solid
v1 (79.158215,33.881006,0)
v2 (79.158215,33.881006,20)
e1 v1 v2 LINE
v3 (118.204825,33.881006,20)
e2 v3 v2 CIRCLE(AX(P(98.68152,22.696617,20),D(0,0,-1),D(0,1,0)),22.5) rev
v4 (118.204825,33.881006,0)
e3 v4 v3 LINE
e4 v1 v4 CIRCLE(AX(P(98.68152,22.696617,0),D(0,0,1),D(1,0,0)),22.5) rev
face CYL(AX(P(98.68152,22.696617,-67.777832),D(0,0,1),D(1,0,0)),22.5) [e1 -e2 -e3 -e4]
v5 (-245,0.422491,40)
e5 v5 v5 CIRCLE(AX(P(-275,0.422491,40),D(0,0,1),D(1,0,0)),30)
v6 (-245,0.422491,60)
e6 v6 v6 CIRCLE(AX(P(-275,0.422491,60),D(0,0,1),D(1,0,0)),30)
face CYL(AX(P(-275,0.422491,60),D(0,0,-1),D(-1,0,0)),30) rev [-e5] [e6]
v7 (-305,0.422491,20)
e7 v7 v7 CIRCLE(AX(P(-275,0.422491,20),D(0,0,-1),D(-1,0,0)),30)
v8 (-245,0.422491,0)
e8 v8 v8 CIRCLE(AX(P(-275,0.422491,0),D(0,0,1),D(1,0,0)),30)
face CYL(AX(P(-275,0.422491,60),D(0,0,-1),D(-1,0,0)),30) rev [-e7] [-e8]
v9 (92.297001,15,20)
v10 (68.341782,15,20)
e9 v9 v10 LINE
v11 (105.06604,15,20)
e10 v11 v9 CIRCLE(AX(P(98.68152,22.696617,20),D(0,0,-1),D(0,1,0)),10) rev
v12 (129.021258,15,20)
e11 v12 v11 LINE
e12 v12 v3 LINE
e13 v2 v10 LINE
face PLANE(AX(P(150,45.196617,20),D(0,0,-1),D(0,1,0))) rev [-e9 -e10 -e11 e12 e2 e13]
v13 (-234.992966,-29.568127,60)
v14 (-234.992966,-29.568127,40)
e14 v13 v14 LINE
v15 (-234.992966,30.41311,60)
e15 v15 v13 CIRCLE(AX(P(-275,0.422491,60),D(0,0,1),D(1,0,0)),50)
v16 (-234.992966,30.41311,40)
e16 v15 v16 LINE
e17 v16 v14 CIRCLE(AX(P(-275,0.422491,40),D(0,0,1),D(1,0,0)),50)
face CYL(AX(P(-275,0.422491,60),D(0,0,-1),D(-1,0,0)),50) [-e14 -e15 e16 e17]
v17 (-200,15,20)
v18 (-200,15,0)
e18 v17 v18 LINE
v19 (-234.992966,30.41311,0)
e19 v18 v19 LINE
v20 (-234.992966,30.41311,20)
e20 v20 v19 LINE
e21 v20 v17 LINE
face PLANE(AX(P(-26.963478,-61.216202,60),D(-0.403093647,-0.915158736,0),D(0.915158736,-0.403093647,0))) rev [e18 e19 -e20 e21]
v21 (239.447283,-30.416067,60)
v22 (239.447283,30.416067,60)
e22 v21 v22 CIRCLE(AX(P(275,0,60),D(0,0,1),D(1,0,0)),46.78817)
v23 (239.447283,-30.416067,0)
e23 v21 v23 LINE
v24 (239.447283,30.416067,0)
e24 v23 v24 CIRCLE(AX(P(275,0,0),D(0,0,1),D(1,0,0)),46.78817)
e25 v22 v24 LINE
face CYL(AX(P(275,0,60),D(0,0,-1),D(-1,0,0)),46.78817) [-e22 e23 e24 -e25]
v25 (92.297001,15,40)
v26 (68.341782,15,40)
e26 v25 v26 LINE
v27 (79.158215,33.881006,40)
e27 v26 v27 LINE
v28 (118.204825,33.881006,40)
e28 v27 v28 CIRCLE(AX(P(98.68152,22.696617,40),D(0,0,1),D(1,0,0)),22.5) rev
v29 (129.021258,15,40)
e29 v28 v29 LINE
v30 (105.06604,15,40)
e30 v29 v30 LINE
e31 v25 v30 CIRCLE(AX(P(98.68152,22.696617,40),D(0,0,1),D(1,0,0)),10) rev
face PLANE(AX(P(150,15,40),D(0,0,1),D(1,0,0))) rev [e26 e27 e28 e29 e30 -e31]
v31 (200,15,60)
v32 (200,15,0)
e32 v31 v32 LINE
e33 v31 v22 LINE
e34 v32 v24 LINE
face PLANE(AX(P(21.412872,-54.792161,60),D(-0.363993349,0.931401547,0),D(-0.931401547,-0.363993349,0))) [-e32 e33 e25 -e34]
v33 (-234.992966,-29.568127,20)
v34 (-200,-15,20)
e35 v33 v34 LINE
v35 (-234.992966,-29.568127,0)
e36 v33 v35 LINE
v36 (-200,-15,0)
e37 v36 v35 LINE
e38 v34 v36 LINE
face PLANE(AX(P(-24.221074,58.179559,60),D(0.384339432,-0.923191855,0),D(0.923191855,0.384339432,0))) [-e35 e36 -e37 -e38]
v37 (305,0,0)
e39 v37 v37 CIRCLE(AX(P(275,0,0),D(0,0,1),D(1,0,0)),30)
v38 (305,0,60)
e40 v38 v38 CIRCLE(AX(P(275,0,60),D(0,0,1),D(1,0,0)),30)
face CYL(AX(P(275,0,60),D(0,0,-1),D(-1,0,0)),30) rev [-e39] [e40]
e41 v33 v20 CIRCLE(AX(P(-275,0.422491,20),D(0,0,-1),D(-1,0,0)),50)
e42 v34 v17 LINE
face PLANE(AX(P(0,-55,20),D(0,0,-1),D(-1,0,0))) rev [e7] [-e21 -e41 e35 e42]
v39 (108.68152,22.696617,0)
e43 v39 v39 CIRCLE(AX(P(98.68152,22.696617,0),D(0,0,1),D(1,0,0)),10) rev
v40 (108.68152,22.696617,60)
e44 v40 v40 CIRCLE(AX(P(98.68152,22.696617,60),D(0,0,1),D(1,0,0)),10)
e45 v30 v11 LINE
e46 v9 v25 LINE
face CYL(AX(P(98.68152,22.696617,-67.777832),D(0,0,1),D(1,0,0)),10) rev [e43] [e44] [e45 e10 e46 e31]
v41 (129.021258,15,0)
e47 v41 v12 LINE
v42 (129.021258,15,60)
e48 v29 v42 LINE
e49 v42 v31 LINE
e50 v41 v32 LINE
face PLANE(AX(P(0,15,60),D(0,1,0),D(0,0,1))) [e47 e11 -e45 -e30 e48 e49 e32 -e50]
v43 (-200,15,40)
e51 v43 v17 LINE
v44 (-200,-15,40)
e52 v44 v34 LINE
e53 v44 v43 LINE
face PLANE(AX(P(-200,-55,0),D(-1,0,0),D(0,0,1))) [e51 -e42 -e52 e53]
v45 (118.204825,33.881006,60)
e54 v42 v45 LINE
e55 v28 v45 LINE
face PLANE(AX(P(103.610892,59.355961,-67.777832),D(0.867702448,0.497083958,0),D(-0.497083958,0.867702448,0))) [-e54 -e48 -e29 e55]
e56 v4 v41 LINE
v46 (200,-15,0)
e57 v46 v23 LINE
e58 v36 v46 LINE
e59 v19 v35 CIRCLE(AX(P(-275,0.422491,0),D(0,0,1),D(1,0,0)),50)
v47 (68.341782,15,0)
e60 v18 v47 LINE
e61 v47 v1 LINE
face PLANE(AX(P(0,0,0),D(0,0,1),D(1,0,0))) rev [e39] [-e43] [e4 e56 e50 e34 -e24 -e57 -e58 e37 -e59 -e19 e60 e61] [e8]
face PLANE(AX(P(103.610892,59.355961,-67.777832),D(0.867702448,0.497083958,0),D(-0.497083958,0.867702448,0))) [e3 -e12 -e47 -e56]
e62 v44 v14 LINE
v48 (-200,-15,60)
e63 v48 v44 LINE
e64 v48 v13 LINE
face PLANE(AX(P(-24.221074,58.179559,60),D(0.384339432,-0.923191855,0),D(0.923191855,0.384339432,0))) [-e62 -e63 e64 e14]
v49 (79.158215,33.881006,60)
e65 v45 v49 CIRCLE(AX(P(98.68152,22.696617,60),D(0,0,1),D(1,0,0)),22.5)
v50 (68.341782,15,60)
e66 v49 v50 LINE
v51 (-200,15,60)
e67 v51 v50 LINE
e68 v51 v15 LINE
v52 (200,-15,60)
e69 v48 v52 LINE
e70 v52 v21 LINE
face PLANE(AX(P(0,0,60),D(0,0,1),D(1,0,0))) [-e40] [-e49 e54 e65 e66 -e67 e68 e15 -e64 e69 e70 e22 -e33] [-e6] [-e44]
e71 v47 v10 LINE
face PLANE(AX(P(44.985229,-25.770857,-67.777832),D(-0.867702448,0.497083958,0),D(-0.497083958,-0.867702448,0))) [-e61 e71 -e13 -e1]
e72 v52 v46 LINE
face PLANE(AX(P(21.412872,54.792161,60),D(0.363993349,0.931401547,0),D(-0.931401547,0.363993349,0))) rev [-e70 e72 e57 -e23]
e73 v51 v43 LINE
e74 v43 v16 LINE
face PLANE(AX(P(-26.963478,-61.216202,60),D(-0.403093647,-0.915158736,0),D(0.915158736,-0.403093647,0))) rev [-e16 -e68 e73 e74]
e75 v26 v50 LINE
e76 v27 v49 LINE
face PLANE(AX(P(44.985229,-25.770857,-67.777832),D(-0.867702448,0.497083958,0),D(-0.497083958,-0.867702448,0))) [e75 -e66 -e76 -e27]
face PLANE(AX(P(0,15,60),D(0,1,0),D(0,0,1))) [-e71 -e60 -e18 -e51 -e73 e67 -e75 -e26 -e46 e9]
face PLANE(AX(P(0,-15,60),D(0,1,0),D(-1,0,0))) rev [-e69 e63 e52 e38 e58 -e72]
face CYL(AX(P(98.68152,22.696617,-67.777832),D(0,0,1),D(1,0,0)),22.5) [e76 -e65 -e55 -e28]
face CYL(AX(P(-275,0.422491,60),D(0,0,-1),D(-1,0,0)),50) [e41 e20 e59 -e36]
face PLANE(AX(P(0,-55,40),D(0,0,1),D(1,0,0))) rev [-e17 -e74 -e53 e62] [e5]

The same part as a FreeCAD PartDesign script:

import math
import FreeCAD as App
import Part
import Sketcher
Q = App.Units.Quantity

doc = App.newDocument("Part")
params = doc.addObject("Spreadsheet::Sheet", "Params")
for row, (alias, value) in enumerate([
    ("sketch1_diameter", "60 mm"),
    ("sketch1_radius", "50 mm"),
    ("sketch1_width", "400 mm"),
    ("pad1_length", "60 mm"),
    ("sketch2_width", "125 mm"),
    ("sketch2_height", "20 mm"),
    ("pocket1_length", "140 mm"),
    ("sketch3_radius", "10 mm"),
    ("sketch3_radius2", "22.5 mm"),
    ("pad2_length", "60 mm"),
    ("sketch4_diameter", "20 mm"),
    ("sketch5_height", "20 mm"),
    ("pocket3_length", "350 mm"),
], start=1):
    params.set(f"A{row}", alias)
    params.set(f"B{row}", "=" + value)
    params.setAlias(f"B{row}", alias)

body = doc.addObject("PartDesign::Body", "Body")

sketch1 = body.newObject("Sketcher::SketchObject", "Sketch")
sketch1.AttachmentSupport = (doc.getObject("XY_Plane"), [""])
sketch1.MapMode = "FlatFace"
sketch1.addGeometry(Part.LineSegment(App.Vector(200, 15, 0), App.Vector(-200, 15, 0)), False)
sketch1.addGeometry(Part.LineSegment(App.Vector(-200, 15, 0), App.Vector(-234.992966, 30.41311, 0)), False)
sketch1.addGeometry(Part.ArcOfCircle(Part.Circle(App.Vector(-275, 0.422491, 0), App.Vector(0, 0, 1), 50), math.radians(36.856461), math.radians(323.143539)), False)
sketch1.addGeometry(Part.LineSegment(App.Vector(-234.992966, -29.568127, 0), App.Vector(-200, -15, 0)), False)
sketch1.addGeometry(Part.LineSegment(App.Vector(-200, -15, 0), App.Vector(200, -15, 0)), False)
sketch1.addGeometry(Part.LineSegment(App.Vector(200, -15, 0), App.Vector(239.447283, -30.416067, 0)), False)
sketch1.addGeometry(Part.ArcOfCircle(Part.Circle(App.Vector(275, 0, 0), App.Vector(0, 0, 1), 46.78817), math.radians(-139.452344), math.radians(139.452344)), False)
sketch1.addGeometry(Part.LineSegment(App.Vector(239.447283, 30.416067, 0), App.Vector(200, 15, 0)), False)
sketch1.addGeometry(Part.Circle(App.Vector(275, 0, 0), App.Vector(0, 0, 1), 30), False)
sketch1.addGeometry(Part.Circle(App.Vector(-275, 0.422491, 0), App.Vector(0, 0, 1), 30), False)
sketch1.addConstraint(Sketcher.Constraint("Coincident", 0, 2, 1, 1))
sketch1.addConstraint(Sketcher.Constraint("Coincident", 1, 2, 2, 1))
sketch1.addConstraint(Sketcher.Constraint("Coincident", 2, 2, 3, 1))
sketch1.addConstraint(Sketcher.Constraint("Coincident", 3, 2, 4, 1))
sketch1.addConstraint(Sketcher.Constraint("Coincident", 4, 2, 5, 1))
sketch1.addConstraint(Sketcher.Constraint("Coincident", 5, 2, 6, 1))
sketch1.addConstraint(Sketcher.Constraint("Coincident", 6, 2, 7, 1))
sketch1.addConstraint(Sketcher.Constraint("Coincident", 7, 2, 0, 1))
sketch1.addConstraint(Sketcher.Constraint("Horizontal", 0))
sketch1.addConstraint(Sketcher.Constraint("Horizontal", 4))
sketch1.addConstraint(Sketcher.Constraint("Coincident", 8, 3, 6, 3))
sketch1.addConstraint(Sketcher.Constraint("Coincident", 9, 3, 2, 3))
sketch1.addConstraint(Sketcher.Constraint("Equal", 8, 9))
sketch1.addConstraint(Sketcher.Constraint("Symmetric", 0, 2, 4, 2, -1, 1))
sketch1.addConstraint(Sketcher.Constraint("Symmetric", 5, 2, 6, 2, -1))
sketch1.addConstraint(Sketcher.Constraint("Vertical", 1, 2, 2, 2))
sketch1.addConstraint(Sketcher.Constraint("Vertical", 0, 2, 3, 2))
sketch1.addConstraint(Sketcher.Constraint("Vertical", 4, 2, 7, 2))
sketch1.addConstraint(Sketcher.Constraint("Diameter", 8, Q("60 mm")))
sketch1.addConstraint(Sketcher.Constraint("Radius", 2, Q("50 mm")))
sketch1.addConstraint(Sketcher.Constraint("DistanceX", 0, 2, 0, 1, Q("400 mm")))
sketch1.addConstraint(Sketcher.Constraint("DistanceX", 2, 3, -1, 1, Q("275 mm")))
sketch1.addConstraint(Sketcher.Constraint("DistanceX", -1, 1, 6, 3, Q("275 mm")))
sketch1.addConstraint(Sketcher.Constraint("DistanceY", -1, 1, 0, 2, Q("15 mm")))
sketch1.addConstraint(Sketcher.Constraint("Radius", 6, Q("46.78817 mm")))
sketch1.addConstraint(Sketcher.Constraint("DistanceY", -1, 1, 2, 3, Q("0.422491 mm")))
sketch1.addConstraint(Sketcher.Constraint("DistanceY", -1, 1, 1, 2, Q("30.41311 mm")))
sketch1.addConstraint(Sketcher.Constraint("Distance", 5, Q("42.352606 mm")))
sketch1.setExpression("Constraints[18]", "Params.sketch1_diameter")
sketch1.setExpression("Constraints[19]", "Params.sketch1_radius")
sketch1.setExpression("Constraints[20]", "Params.sketch1_width")
pad1 = body.newObject("PartDesign::Pad", "Pad")
pad1.Profile = sketch1
pad1.setExpression("Length", "Params.pad1_length")

sketch2 = body.newObject("Sketcher::SketchObject", "Sketch001")
sketch2.AttachmentSupport = (doc.getObject("XZ_Plane"), [""])
sketch2.MapMode = "FlatFace"
sketch2.AttachmentOffset = App.Placement(App.Vector(0, 0, -15), App.Rotation())
sketch2.addGeometry(Part.LineSegment(App.Vector(-325, 20, 0), App.Vector(-325, 40, 0)), False)
sketch2.addGeometry(Part.LineSegment(App.Vector(-325, 40, 0), App.Vector(-200, 40, 0)), False)
sketch2.addGeometry(Part.LineSegment(App.Vector(-200, 40, 0), App.Vector(-200, 20, 0)), False)
sketch2.addGeometry(Part.LineSegment(App.Vector(-200, 20, 0), App.Vector(-325, 20, 0)), False)
sketch2.addConstraint(Sketcher.Constraint("Coincident", 0, 2, 1, 1))
sketch2.addConstraint(Sketcher.Constraint("Coincident", 1, 2, 2, 1))
sketch2.addConstraint(Sketcher.Constraint("Coincident", 2, 2, 3, 1))
sketch2.addConstraint(Sketcher.Constraint("Coincident", 3, 2, 0, 1))
sketch2.addConstraint(Sketcher.Constraint("Vertical", 0))
sketch2.addConstraint(Sketcher.Constraint("Horizontal", 1))
sketch2.addConstraint(Sketcher.Constraint("Vertical", 2))
sketch2.addConstraint(Sketcher.Constraint("Horizontal", 3))
sketch2.addConstraint(Sketcher.Constraint("DistanceX", 1, 1, 1, 2, Q("125 mm")))
sketch2.addConstraint(Sketcher.Constraint("DistanceY", 0, 1, 0, 2, Q("20 mm")))
sketch2.addConstraint(Sketcher.Constraint("DistanceX", 0, 2, -1, 1, Q("325 mm")))
sketch2.addConstraint(Sketcher.Constraint("DistanceY", -1, 1, 0, 2, Q("40 mm")))
sketch2.setExpression("Constraints[8]", "Params.sketch2_width")
sketch2.setExpression("Constraints[9]", "Params.sketch2_height")
pocket1 = body.newObject("PartDesign::Pocket", "Pocket")
pocket1.Profile = sketch2
pocket1.setExpression("Length", "Params.pocket1_length")
pocket1.Midplane = True

sketch3 = body.newObject("Sketcher::SketchObject", "Sketch002")
sketch3.AttachmentSupport = (doc.getObject("XY_Plane"), [""])
sketch3.MapMode = "FlatFace"
sketch3.AttachmentOffset = App.Placement(App.Vector(0, 0, 60), App.Rotation())
sketch3.addGeometry(Part.ArcOfCircle(Part.Circle(App.Vector(98.68152, 22.696617, 0), App.Vector(0, 0, 1), 22.5), math.radians(29.807263), math.radians(150.192737)), False)
sketch3.addGeometry(Part.LineSegment(App.Vector(79.158215, 33.881006, 0), App.Vector(68.341782, 15, 0)), False)
sketch3.addGeometry(Part.LineSegment(App.Vector(68.341782, 15, 0), App.Vector(92.297001, 15, 0)), False)
sketch3.addGeometry(Part.ArcOfCircle(Part.Circle(App.Vector(98.68152, 22.696617, 0), App.Vector(0, 0, 1), 10), math.radians(-50.32352), math.radians(230.32352)), False)
sketch3.addGeometry(Part.LineSegment(App.Vector(105.06604, 15, 0), App.Vector(129.021258, 15, 0)), False)
sketch3.addGeometry(Part.LineSegment(App.Vector(129.021258, 15, 0), App.Vector(118.204825, 33.881006, 0)), False)
sketch3.addConstraint(Sketcher.Constraint("Tangent", 0, 2, 1, 1))
sketch3.addConstraint(Sketcher.Constraint("Coincident", 1, 2, 2, 1))
sketch3.addConstraint(Sketcher.Constraint("Coincident", 2, 2, 3, 2))
sketch3.addConstraint(Sketcher.Constraint("Coincident", 3, 1, 4, 1))
sketch3.addConstraint(Sketcher.Constraint("Coincident", 4, 2, 5, 1))
sketch3.addConstraint(Sketcher.Constraint("Tangent", 5, 2, 0, 1))
sketch3.addConstraint(Sketcher.Constraint("Horizontal", 2))
sketch3.addConstraint(Sketcher.Constraint("Horizontal", 4))
sketch3.addConstraint(Sketcher.Constraint("Coincident", 3, 3, 0, 3))
sketch3.addConstraint(Sketcher.Constraint("Horizontal", 2, 2, 3, 1))
sketch3.addConstraint(Sketcher.Constraint("Horizontal", 0, 2, 5, 2))
sketch3.addConstraint(Sketcher.Constraint("Radius", 3, Q("10 mm")))
sketch3.addConstraint(Sketcher.Constraint("Radius", 0, Q("22.5 mm")))
sketch3.addConstraint(Sketcher.Constraint("DistanceY", -1, 1, 1, 2, Q("15 mm")))
sketch3.addConstraint(Sketcher.Constraint("DistanceX", -1, 1, 2, 2, Q("92.297001 mm")))
sketch3.addConstraint(Sketcher.Constraint("DistanceX", 2, 1, 2, 2, Q("23.955219 mm")))
sketch3.addConstraint(Sketcher.Constraint("Distance", 1, Q("21.75977 mm")))
sketch3.setExpression("Constraints[11]", "Params.sketch3_radius")
sketch3.setExpression("Constraints[12]", "Params.sketch3_radius2")
pad2 = body.newObject("PartDesign::Pad", "Pad001")
pad2.Profile = sketch3
pad2.setExpression("Length", "Params.pad2_length")
pad2.Reversed = True

sketch4 = body.newObject("Sketcher::SketchObject", "Sketch003")
sketch4.AttachmentSupport = (doc.getObject("XY_Plane"), [""])
sketch4.MapMode = "FlatFace"
sketch4.AttachmentOffset = App.Placement(App.Vector(0, 0, 60), App.Rotation())
sketch4.addGeometry(Part.Circle(App.Vector(98.68152, 22.696617, 0), App.Vector(0, 0, 1), 10), False)
sketch4.addConstraint(Sketcher.Constraint("Diameter", 0, Q("20 mm")))
sketch4.addConstraint(Sketcher.Constraint("DistanceX", -1, 1, 0, 3, Q("98.68152 mm")))
sketch4.addConstraint(Sketcher.Constraint("DistanceY", -1, 1, 0, 3, Q("22.696617 mm")))
sketch4.setExpression("Constraints[0]", "Params.sketch4_diameter")
pocket2 = body.newObject("PartDesign::Pocket", "Pocket001")
pocket2.Profile = sketch4
pocket2.Type = "ThroughAll"

sketch5 = body.newObject("Sketcher::SketchObject", "Sketch004")
sketch5.AttachmentSupport = (doc.getObject("YZ_Plane"), [""])
sketch5.MapMode = "FlatFace"
sketch5.AttachmentOffset = App.Placement(App.Vector(0, 0, -200), App.Rotation())
sketch5.addGeometry(Part.LineSegment(App.Vector(45.196617, 20, 0), App.Vector(15, 20, 0)), False)
sketch5.addGeometry(Part.LineSegment(App.Vector(15, 20, 0), App.Vector(15, 40, 0)), False)
sketch5.addGeometry(Part.LineSegment(App.Vector(15, 40, 0), App.Vector(45.196617, 40, 0)), False)
sketch5.addGeometry(Part.LineSegment(App.Vector(45.196617, 40, 0), App.Vector(45.196617, 20, 0)), False)
sketch5.addConstraint(Sketcher.Constraint("Coincident", 0, 2, 1, 1))
sketch5.addConstraint(Sketcher.Constraint("Coincident", 1, 2, 2, 1))
sketch5.addConstraint(Sketcher.Constraint("Coincident", 2, 2, 3, 1))
sketch5.addConstraint(Sketcher.Constraint("Coincident", 3, 2, 0, 1))
sketch5.addConstraint(Sketcher.Constraint("Horizontal", 0))
sketch5.addConstraint(Sketcher.Constraint("Vertical", 1))
sketch5.addConstraint(Sketcher.Constraint("Horizontal", 2))
sketch5.addConstraint(Sketcher.Constraint("Vertical", 3))
sketch5.addConstraint(Sketcher.Constraint("DistanceY", 1, 1, 1, 2, Q("20 mm")))
sketch5.addConstraint(Sketcher.Constraint("DistanceX", -1, 1, 0, 2, Q("15 mm")))
sketch5.addConstraint(Sketcher.Constraint("DistanceY", -1, 1, 0, 2, Q("20 mm")))
sketch5.addConstraint(Sketcher.Constraint("DistanceX", 0, 2, 0, 1, Q("30.196617 mm")))
sketch5.setExpression("Constraints[8]", "Params.sketch5_height")
pocket3 = body.newObject("PartDesign::Pocket", "Pocket002")
pocket3.Profile = sketch5
pocket3.setExpression("Length", "Params.pocket3_length")
pocket3.Reversed = True

doc.recompute()
